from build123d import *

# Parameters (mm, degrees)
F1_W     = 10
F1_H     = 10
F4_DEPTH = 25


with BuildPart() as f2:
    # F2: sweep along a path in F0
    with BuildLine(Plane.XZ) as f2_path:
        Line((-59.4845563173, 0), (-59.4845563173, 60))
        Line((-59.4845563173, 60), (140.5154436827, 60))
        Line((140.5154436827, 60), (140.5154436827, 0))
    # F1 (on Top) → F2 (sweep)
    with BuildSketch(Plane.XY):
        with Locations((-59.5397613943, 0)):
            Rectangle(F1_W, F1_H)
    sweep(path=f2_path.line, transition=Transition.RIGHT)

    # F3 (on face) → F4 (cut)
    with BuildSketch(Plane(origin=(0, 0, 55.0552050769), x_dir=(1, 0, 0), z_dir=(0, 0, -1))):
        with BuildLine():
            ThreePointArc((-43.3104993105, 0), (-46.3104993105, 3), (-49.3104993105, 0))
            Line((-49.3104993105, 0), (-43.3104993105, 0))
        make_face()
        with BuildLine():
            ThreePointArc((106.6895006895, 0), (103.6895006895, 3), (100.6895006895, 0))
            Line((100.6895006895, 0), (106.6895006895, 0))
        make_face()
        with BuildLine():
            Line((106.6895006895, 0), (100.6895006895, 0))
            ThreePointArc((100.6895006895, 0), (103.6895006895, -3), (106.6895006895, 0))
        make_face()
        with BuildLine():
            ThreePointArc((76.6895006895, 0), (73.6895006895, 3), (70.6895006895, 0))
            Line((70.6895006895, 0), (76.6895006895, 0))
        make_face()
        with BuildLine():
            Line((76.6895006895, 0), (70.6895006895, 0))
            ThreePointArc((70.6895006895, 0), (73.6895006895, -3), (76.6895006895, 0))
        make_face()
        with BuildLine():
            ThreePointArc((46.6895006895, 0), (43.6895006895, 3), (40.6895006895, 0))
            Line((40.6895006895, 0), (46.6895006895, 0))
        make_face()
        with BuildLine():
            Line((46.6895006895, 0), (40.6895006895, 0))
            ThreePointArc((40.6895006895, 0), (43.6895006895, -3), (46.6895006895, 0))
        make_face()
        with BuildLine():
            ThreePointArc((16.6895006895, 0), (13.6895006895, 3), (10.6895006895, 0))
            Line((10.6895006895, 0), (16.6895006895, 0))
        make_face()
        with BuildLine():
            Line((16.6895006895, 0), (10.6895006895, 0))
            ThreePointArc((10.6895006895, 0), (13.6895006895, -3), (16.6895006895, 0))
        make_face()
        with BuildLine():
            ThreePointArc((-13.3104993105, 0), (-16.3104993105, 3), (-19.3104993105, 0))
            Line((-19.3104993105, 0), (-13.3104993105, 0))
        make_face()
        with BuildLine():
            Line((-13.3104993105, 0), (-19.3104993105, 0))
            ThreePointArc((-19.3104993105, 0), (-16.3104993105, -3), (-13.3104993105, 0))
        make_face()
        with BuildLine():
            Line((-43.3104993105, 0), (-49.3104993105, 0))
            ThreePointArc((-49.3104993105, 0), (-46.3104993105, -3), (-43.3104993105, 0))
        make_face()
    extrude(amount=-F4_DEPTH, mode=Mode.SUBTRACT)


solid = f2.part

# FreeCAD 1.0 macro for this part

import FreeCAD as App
import Part
import Sketcher
Q = App.Units.Quantity

doc = App.newDocument("Part")
body = doc.addObject("PartDesign::Body", "Body")

sketch1 = body.newObject("Sketcher::SketchObject", "Sketch")
sketch1.AttachmentSupport = (doc.getObject("XY_Plane"), [""])
sketch1.MapMode = "FlatFace"
sketch1.addGeometry([
    Part.LineSegment(App.Vector(-65, 5, 0), App.Vector(-65, -5, 0)),
    Part.LineSegment(App.Vector(-65, -5, 0), App.Vector(-55, -5, 0)),
    Part.LineSegment(App.Vector(-55, -5, 0), App.Vector(-55, 5, 0)),
    Part.LineSegment(App.Vector(-55, 5, 0), App.Vector(-65, 5, 0)),
], False)
sketch1.addConstraint([
    Sketcher.Constraint("Coincident", 0, 2, 1, 1),
    Sketcher.Constraint("Coincident", 1, 2, 2, 1),
    Sketcher.Constraint("Coincident", 2, 2, 3, 1),
    Sketcher.Constraint("Coincident", 3, 2, 0, 1),
    Sketcher.Constraint("Vertical", 0),
    Sketcher.Constraint("Horizontal", 1),
    Sketcher.Constraint("Vertical", 2),
    Sketcher.Constraint("Horizontal", 3),
    Sketcher.Constraint("Equal", 3, 0),
    Sketcher.Constraint("DistanceX", 1, 1, 1, 2, Q("10 mm")),
    Sketcher.Constraint("DistanceY", 0, 2, -1, 1, Q("5 mm")),
    Sketcher.Constraint("DistanceX", 0, 2, -1, 1, Q("64.539761 mm")),
])

sketch2 = body.newObject("Sketcher::SketchObject", "Sketch001")
sketch2.AttachmentSupport = (doc.getObject("XZ_Plane"), [""])
sketch2.MapMode = "FlatFace"
sketch2.addGeometry([
    Part.LineSegment(App.Vector(-59, 0, 0), App.Vector(-59, 60, 0)),
    Part.LineSegment(App.Vector(-59, 60, 0), App.Vector(141, 60, 0)),
    Part.LineSegment(App.Vector(141, 60, 0), App.Vector(141, 0, 0)),
], False)
sketch2.addConstraint([
    Sketcher.Constraint("Coincident", 0, 2, 1, 1),
    Sketcher.Constraint("Coincident", 1, 2, 2, 1),
    Sketcher.Constraint("Vertical", 0),
    Sketcher.Constraint("Horizontal", 1),
    Sketcher.Constraint("Vertical", 2),
    Sketcher.Constraint("PointOnObject", 0, 1, -1),
    Sketcher.Constraint("PointOnObject", 2, 2, -1),
    Sketcher.Constraint("DistanceX", 1, 1, 1, 2, Q("200 mm")),
    Sketcher.Constraint("DistanceY", 0, 1, 0, 2, Q("60 mm")),
    Sketcher.Constraint("DistanceX", 0, 1, -1, 1, Q("59.484556 mm")),
])
doc.recompute()

additivepipe = body.newObject("PartDesign::AdditivePipe", "AdditivePipe")
additivepipe.Profile = sketch1
additivepipe.Spine = (sketch2, ["Edge1", "Edge2", "Edge3"])
additivepipe.Transition = "Right corner"

sketch3 = body.newObject("Sketcher::SketchObject", "Sketch002")
sketch3.AttachmentSupport = (doc.getObject("XY_Plane"), [""])
sketch3.MapMode = "FlatFace"
sketch3.AttachmentOffset = App.Placement(App.Vector(0, 0, 55.055205), App.Rotation())
sketch3.addGeometry([
    Part.Circle(App.Vector(-46.3, 0, 0), App.Vector(0, 0, 1), 3),
    Part.Circle(App.Vector(103.7, 0, 0), App.Vector(0, 0, 1), 3),
    Part.Circle(App.Vector(73.7, 0, 0), App.Vector(0, 0, 1), 3),
    Part.Circle(App.Vector(43.7, 0, 0), App.Vector(0, 0, 1), 3),
    Part.Circle(App.Vector(13.7, 0, 0), App.Vector(0, 0, 1), 3),
    Part.Circle(App.Vector(-16.3, 0, 0), App.Vector(0, 0, 1), 3),
], False)
sketch3.addConstraint([
    Sketcher.Constraint("Equal", 0, 1),
    Sketcher.Constraint("Equal", 1, 2),
    Sketcher.Constraint("Equal", 2, 3),
    Sketcher.Constraint("Equal", 3, 4),
    Sketcher.Constraint("Equal", 4, 5),
    Sketcher.Constraint("PointOnObject", 0, 3, -1),
    Sketcher.Constraint("PointOnObject", 1, 3, -1),
    Sketcher.Constraint("PointOnObject", 2, 3, -1),
    Sketcher.Constraint("PointOnObject", 3, 3, -1),
    Sketcher.Constraint("PointOnObject", 4, 3, -1),
    Sketcher.Constraint("PointOnObject", 5, 3, -1),
    Sketcher.Constraint("Diameter", 0, Q("6 mm")),
    Sketcher.Constraint("DistanceX", 0, 3, 1, 3, Q("150 mm")),
    Sketcher.Constraint("DistanceX", 2, 3, 1, 3, Q("30 mm")),
    Sketcher.Constraint("DistanceX", 3, 3, 2, 3, Q("30 mm")),
    Sketcher.Constraint("DistanceX", 4, 3, 3, 3, Q("30 mm")),
    Sketcher.Constraint("DistanceX", 0, 3, 5, 3, Q("30 mm")),
    Sketcher.Constraint("DistanceX", 0, 3, -1, 1, Q("46.310499 mm")),
])
pocket1 = body.newObject("PartDesign::Pocket", "Pocket")
pocket1.Profile = sketch3
pocket1.Length = 25
pocket1.Reversed = True

doc.recompute()
